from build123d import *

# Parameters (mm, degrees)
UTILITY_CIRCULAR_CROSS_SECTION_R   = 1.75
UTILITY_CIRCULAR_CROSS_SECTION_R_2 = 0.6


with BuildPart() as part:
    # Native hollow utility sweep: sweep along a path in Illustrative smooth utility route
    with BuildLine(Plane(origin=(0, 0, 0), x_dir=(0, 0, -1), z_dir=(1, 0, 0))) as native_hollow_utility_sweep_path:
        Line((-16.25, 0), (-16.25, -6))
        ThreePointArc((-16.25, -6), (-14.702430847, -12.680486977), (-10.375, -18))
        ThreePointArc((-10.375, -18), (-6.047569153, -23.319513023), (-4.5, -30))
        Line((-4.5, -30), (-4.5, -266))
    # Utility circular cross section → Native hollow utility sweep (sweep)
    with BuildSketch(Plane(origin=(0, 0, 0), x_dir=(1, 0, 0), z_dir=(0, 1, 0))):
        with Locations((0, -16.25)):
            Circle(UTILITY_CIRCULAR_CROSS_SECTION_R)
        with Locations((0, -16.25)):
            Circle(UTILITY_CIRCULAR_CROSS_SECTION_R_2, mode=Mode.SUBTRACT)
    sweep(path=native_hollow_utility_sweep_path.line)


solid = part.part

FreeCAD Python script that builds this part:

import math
import FreeCAD as App
import Part
import Sketcher
from FreeCAD import Vector

doc = App.newDocument("Part")
body = doc.addObject("PartDesign::Body", "Body")

# Sketch on XZ plane
sketch1 = doc.addObject("Sketcher::SketchObject", "Sketch")
body.addObject(sketch1)
sketch1.AttachmentSupport = (doc.XZ_Plane, [""])
sketch1.MapMode = "FlatFace"
sketch1.addGeometry(Part.Circle(Vector(0, 16.2, 0), Vector(0, 0, 1), 1.8), False)
sketch1.addGeometry(Part.Circle(Vector(0, 16.2, 0), Vector(0, 0, 1), 0.6), False)
sketch1.addConstraint(Sketcher.Constraint("Coincident", 1, 3, 0, 3))
sketch1.addConstraint(Sketcher.Constraint("PointOnObject", 0, 3, -2))
sketch1.addConstraint(Sketcher.Constraint("Diameter", 0, 3.5))
sketch1.addConstraint(Sketcher.Constraint("Diameter", 1, 1.2))
sketch1.addConstraint(Sketcher.Constraint("DistanceY", -1, 1, 0, 3, 16.25))

# Sketch on YZ plane
sketch2 = doc.addObject("Sketcher::SketchObject", "Sketch001")
body.addObject(sketch2)
sketch2.AttachmentSupport = (doc.YZ_Plane, [""])
sketch2.MapMode = "FlatFace"
sketch2.addGeometry(Part.LineSegment(Vector(0, 16, 0), Vector(-6, 16, 0)), False)
sketch2.addGeometry(Part.ArcOfCircle(Part.Circle(Vector(-6, 1, 0), Vector(0, 0, 1), 15), math.radians(90), math.radians(142)), False)
sketch2.addGeometry(Part.ArcOfCircle(Part.Circle(Vector(-30, 20, 0), Vector(0, 0, 1), 15), math.radians(-90), math.radians(-38)), False)
sketch2.addGeometry(Part.LineSegment(Vector(-30, 4, 0), Vector(-266, 4, 0)), False)
sketch2.addConstraint(Sketcher.Constraint("Tangent", 0, 2, 1, 1))
sketch2.addConstraint(Sketcher.Constraint("Tangent", 1, 2, 2, 2))
sketch2.addConstraint(Sketcher.Constraint("Tangent", 2, 1, 3, 1))
sketch2.addConstraint(Sketcher.Constraint("Horizontal", 0))
sketch2.addConstraint(Sketcher.Constraint("Horizontal", 3))
sketch2.addConstraint(Sketcher.Constraint("Equal", 1, 2))
sketch2.addConstraint(Sketcher.Constraint("PointOnObject", 0, 1, -2))
sketch2.addConstraint(Sketcher.Constraint("DistanceX", 0, 2, 0, 1, 6.0))
sketch2.addConstraint(Sketcher.Constraint("DistanceX", 3, 2, 3, 1, 236.0))
sketch2.addConstraint(Sketcher.Constraint("DistanceX", 2, 3, -1, 1, 30.0))
sketch2.addConstraint(Sketcher.Constraint("DistanceY", -1, 1, 2, 1, 4.5))
sketch2.addConstraint(Sketcher.Constraint("DistanceY", -1, 1, 0, 1, 16.25))
doc.recompute()

additivepipe = doc.addObject("PartDesign::AdditivePipe", "AdditivePipe")
body.addObject(additivepipe)
additivepipe.Profile = sketch1
additivepipe.Spine = (sketch2, ["Edge1", "Edge2", "Edge3", "Edge4"])

doc.recompute()
